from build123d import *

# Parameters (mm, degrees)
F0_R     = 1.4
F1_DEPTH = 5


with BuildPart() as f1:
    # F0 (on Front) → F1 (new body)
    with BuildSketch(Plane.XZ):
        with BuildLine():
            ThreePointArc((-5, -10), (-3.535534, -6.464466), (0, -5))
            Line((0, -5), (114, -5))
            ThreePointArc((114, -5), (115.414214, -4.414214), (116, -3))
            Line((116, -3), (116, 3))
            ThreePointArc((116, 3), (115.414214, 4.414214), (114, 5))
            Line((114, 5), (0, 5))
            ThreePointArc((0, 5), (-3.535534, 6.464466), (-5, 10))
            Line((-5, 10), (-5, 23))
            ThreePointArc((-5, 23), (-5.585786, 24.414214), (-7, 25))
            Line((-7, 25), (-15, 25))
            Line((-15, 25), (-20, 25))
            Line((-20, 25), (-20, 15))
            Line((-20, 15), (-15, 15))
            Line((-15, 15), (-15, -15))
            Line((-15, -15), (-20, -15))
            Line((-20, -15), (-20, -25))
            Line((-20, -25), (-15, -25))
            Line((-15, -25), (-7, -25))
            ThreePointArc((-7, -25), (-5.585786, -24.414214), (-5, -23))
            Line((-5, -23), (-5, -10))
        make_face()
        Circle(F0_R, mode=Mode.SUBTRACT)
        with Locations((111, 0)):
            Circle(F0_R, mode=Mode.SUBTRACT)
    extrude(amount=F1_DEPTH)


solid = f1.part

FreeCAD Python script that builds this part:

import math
import FreeCAD as App
import Part
import Sketcher

V = App.Vector
Q = App.Units.Quantity

doc = App.newDocument("Part")
body = doc.addObject("PartDesign::Body", "Body")

# Sketch on XZ plane
sketch1 = doc.addObject("Sketcher::SketchObject", "Sketch")
body.addObject(sketch1)
sketch1.AttachmentSupport = (doc.XZ_Plane, [""])
sketch1.MapMode = "FlatFace"
sketch1.addGeometry([
    Part.ArcOfCircle(Part.Circle(V(0, -10, 0), V(0, 0, 1), 5), math.radians(90), math.radians(180)),  # 0
    Part.LineSegment(V(0, -5, 0), V(114, -5, 0)),  # 1
    Part.ArcOfCircle(Part.Circle(V(114, -3, 0), V(0, 0, 1), 2), math.radians(-90), math.radians(0)),  # 2
    Part.LineSegment(V(116, -3, 0), V(116, 3, 0)),  # 3
    Part.ArcOfCircle(Part.Circle(V(114, 3, 0), V(0, 0, 1), 2), math.radians(0), math.radians(90)),  # 4
    Part.LineSegment(V(114, 5, 0), V(0, 5, 0)),  # 5
    Part.ArcOfCircle(Part.Circle(V(0, 10, 0), V(0, 0, 1), 5), math.radians(180), math.radians(270)),  # 6
    Part.LineSegment(V(-5, 10, 0), V(-5, 23, 0)),  # 7
    Part.ArcOfCircle(Part.Circle(V(-7, 23, 0), V(0, 0, 1), 2), math.radians(0), math.radians(90)),  # 8
    Part.LineSegment(V(-7, 25, 0), V(-20, 25, 0)),  # 9
    Part.LineSegment(V(-20, 25, 0), V(-20, 15, 0)),  # 10
    Part.LineSegment(V(-20, 15, 0), V(-15, 15, 0)),  # 11
    Part.LineSegment(V(-15, 15, 0), V(-15, -15, 0)),  # 12
    Part.LineSegment(V(-15, -15, 0), V(-20, -15, 0)),  # 13
    Part.LineSegment(V(-20, -15, 0), V(-20, -25, 0)),  # 14
    Part.LineSegment(V(-20, -25, 0), V(-7, -25, 0)),  # 15
    Part.ArcOfCircle(Part.Circle(V(-7, -23, 0), V(0, 0, 1), 2), math.radians(-90), math.radians(0)),  # 16
    Part.LineSegment(V(-5, -23, 0), V(-5, -10, 0)),  # 17
    Part.Circle(V(0, 0, 0), V(0, 0, 1), 1.4),  # 18
    Part.Circle(V(111, 0, 0), V(0, 0, 1), 1.4),  # 19
], False)
sketch1.addConstraint([
    Sketcher.Constraint("Tangent", 0, 1, 1, 1),
    Sketcher.Constraint("Tangent", 1, 2, 2, 1),
    Sketcher.Constraint("Tangent", 2, 2, 3, 1),
    Sketcher.Constraint("Tangent", 3, 2, 4, 1),
    Sketcher.Constraint("Tangent", 4, 2, 5, 1),
    Sketcher.Constraint("Tangent", 5, 2, 6, 2),
    Sketcher.Constraint("Tangent", 6, 1, 7, 1),
    Sketcher.Constraint("Tangent", 7, 2, 8, 1),
    Sketcher.Constraint("Tangent", 8, 2, 9, 1),
    Sketcher.Constraint("Coincident", 9, 2, 10, 1),
    Sketcher.Constraint("Coincident", 10, 2, 11, 1),
    Sketcher.Constraint("Coincident", 11, 2, 12, 1),
    Sketcher.Constraint("Coincident", 12, 2, 13, 1),
    Sketcher.Constraint("Coincident", 13, 2, 14, 1),
    Sketcher.Constraint("Coincident", 14, 2, 15, 1),
    Sketcher.Constraint("Tangent", 15, 2, 16, 1),
    Sketcher.Constraint("Tangent", 16, 2, 17, 1),
    Sketcher.Constraint("Tangent", 17, 2, 0, 2),
    Sketcher.Constraint("Horizontal", 1),
    Sketcher.Constraint("Vertical", 3),
    Sketcher.Constraint("Horizontal", 5),
    Sketcher.Constraint("Vertical", 7),
    Sketcher.Constraint("Horizontal", 9),
    Sketcher.Constraint("Vertical", 10),
    Sketcher.Constraint("Horizontal", 11),
    Sketcher.Constraint("Vertical", 12),
    Sketcher.Constraint("Horizontal", 13),
    Sketcher.Constraint("Vertical", 14),
    Sketcher.Constraint("Horizontal", 15),
    Sketcher.Constraint("Vertical", 17),
    Sketcher.Constraint("Coincident", 18, 3, -1, 1),
    Sketcher.Constraint("Equal", 2, 4),
    Sketcher.Constraint("Equal", 0, 6),
    Sketcher.Constraint("Equal", 4, 8),
    Sketcher.Constraint("Equal", 8, 16),
    Sketcher.Constraint("Equal", 18, 19),
    Sketcher.Constraint("Symmetric", 0, 3, 6, 3, -1, 1),
    Sketcher.Constraint("Symmetric", 8, 3, 16, 3, -1),
    Sketcher.Constraint("Symmetric", 10, 2, 13, 2, -1),
    Sketcher.Constraint("PointOnObject", 19, 3, -1),
    Sketcher.Constraint("Equal", 15, 7),
    Sketcher.Constraint("Radius", 0, Q("5 mm")),
    Sketcher.Constraint("Radius", 2, Q("1.999999 mm")),
    Sketcher.Constraint("Diameter", 18, Q("2.8 mm")),
    Sketcher.Constraint("DistanceX", 1, 1, 1, 2, Q("114 mm")),
    Sketcher.Constraint("DistanceX", 9, 2, 9, 1, Q("13 mm")),
    Sketcher.Constraint("DistanceX", 11, 1, 11, 2, Q("5 mm")),
    Sketcher.Constraint("DistanceY", 3, 1, 3, 2, Q("6 mm")),
    Sketcher.Constraint("DistanceY", 10, 2, 10, 1, Q("10 mm")),
    Sketcher.Constraint("DistanceX", -1, 1, 19, 3, Q("111 mm")),
])
pad1 = doc.addObject("PartDesign::Pad", "Pad")
body.addObject(pad1)
pad1.Profile = sketch1
pad1.Length = 5

doc.recompute()
